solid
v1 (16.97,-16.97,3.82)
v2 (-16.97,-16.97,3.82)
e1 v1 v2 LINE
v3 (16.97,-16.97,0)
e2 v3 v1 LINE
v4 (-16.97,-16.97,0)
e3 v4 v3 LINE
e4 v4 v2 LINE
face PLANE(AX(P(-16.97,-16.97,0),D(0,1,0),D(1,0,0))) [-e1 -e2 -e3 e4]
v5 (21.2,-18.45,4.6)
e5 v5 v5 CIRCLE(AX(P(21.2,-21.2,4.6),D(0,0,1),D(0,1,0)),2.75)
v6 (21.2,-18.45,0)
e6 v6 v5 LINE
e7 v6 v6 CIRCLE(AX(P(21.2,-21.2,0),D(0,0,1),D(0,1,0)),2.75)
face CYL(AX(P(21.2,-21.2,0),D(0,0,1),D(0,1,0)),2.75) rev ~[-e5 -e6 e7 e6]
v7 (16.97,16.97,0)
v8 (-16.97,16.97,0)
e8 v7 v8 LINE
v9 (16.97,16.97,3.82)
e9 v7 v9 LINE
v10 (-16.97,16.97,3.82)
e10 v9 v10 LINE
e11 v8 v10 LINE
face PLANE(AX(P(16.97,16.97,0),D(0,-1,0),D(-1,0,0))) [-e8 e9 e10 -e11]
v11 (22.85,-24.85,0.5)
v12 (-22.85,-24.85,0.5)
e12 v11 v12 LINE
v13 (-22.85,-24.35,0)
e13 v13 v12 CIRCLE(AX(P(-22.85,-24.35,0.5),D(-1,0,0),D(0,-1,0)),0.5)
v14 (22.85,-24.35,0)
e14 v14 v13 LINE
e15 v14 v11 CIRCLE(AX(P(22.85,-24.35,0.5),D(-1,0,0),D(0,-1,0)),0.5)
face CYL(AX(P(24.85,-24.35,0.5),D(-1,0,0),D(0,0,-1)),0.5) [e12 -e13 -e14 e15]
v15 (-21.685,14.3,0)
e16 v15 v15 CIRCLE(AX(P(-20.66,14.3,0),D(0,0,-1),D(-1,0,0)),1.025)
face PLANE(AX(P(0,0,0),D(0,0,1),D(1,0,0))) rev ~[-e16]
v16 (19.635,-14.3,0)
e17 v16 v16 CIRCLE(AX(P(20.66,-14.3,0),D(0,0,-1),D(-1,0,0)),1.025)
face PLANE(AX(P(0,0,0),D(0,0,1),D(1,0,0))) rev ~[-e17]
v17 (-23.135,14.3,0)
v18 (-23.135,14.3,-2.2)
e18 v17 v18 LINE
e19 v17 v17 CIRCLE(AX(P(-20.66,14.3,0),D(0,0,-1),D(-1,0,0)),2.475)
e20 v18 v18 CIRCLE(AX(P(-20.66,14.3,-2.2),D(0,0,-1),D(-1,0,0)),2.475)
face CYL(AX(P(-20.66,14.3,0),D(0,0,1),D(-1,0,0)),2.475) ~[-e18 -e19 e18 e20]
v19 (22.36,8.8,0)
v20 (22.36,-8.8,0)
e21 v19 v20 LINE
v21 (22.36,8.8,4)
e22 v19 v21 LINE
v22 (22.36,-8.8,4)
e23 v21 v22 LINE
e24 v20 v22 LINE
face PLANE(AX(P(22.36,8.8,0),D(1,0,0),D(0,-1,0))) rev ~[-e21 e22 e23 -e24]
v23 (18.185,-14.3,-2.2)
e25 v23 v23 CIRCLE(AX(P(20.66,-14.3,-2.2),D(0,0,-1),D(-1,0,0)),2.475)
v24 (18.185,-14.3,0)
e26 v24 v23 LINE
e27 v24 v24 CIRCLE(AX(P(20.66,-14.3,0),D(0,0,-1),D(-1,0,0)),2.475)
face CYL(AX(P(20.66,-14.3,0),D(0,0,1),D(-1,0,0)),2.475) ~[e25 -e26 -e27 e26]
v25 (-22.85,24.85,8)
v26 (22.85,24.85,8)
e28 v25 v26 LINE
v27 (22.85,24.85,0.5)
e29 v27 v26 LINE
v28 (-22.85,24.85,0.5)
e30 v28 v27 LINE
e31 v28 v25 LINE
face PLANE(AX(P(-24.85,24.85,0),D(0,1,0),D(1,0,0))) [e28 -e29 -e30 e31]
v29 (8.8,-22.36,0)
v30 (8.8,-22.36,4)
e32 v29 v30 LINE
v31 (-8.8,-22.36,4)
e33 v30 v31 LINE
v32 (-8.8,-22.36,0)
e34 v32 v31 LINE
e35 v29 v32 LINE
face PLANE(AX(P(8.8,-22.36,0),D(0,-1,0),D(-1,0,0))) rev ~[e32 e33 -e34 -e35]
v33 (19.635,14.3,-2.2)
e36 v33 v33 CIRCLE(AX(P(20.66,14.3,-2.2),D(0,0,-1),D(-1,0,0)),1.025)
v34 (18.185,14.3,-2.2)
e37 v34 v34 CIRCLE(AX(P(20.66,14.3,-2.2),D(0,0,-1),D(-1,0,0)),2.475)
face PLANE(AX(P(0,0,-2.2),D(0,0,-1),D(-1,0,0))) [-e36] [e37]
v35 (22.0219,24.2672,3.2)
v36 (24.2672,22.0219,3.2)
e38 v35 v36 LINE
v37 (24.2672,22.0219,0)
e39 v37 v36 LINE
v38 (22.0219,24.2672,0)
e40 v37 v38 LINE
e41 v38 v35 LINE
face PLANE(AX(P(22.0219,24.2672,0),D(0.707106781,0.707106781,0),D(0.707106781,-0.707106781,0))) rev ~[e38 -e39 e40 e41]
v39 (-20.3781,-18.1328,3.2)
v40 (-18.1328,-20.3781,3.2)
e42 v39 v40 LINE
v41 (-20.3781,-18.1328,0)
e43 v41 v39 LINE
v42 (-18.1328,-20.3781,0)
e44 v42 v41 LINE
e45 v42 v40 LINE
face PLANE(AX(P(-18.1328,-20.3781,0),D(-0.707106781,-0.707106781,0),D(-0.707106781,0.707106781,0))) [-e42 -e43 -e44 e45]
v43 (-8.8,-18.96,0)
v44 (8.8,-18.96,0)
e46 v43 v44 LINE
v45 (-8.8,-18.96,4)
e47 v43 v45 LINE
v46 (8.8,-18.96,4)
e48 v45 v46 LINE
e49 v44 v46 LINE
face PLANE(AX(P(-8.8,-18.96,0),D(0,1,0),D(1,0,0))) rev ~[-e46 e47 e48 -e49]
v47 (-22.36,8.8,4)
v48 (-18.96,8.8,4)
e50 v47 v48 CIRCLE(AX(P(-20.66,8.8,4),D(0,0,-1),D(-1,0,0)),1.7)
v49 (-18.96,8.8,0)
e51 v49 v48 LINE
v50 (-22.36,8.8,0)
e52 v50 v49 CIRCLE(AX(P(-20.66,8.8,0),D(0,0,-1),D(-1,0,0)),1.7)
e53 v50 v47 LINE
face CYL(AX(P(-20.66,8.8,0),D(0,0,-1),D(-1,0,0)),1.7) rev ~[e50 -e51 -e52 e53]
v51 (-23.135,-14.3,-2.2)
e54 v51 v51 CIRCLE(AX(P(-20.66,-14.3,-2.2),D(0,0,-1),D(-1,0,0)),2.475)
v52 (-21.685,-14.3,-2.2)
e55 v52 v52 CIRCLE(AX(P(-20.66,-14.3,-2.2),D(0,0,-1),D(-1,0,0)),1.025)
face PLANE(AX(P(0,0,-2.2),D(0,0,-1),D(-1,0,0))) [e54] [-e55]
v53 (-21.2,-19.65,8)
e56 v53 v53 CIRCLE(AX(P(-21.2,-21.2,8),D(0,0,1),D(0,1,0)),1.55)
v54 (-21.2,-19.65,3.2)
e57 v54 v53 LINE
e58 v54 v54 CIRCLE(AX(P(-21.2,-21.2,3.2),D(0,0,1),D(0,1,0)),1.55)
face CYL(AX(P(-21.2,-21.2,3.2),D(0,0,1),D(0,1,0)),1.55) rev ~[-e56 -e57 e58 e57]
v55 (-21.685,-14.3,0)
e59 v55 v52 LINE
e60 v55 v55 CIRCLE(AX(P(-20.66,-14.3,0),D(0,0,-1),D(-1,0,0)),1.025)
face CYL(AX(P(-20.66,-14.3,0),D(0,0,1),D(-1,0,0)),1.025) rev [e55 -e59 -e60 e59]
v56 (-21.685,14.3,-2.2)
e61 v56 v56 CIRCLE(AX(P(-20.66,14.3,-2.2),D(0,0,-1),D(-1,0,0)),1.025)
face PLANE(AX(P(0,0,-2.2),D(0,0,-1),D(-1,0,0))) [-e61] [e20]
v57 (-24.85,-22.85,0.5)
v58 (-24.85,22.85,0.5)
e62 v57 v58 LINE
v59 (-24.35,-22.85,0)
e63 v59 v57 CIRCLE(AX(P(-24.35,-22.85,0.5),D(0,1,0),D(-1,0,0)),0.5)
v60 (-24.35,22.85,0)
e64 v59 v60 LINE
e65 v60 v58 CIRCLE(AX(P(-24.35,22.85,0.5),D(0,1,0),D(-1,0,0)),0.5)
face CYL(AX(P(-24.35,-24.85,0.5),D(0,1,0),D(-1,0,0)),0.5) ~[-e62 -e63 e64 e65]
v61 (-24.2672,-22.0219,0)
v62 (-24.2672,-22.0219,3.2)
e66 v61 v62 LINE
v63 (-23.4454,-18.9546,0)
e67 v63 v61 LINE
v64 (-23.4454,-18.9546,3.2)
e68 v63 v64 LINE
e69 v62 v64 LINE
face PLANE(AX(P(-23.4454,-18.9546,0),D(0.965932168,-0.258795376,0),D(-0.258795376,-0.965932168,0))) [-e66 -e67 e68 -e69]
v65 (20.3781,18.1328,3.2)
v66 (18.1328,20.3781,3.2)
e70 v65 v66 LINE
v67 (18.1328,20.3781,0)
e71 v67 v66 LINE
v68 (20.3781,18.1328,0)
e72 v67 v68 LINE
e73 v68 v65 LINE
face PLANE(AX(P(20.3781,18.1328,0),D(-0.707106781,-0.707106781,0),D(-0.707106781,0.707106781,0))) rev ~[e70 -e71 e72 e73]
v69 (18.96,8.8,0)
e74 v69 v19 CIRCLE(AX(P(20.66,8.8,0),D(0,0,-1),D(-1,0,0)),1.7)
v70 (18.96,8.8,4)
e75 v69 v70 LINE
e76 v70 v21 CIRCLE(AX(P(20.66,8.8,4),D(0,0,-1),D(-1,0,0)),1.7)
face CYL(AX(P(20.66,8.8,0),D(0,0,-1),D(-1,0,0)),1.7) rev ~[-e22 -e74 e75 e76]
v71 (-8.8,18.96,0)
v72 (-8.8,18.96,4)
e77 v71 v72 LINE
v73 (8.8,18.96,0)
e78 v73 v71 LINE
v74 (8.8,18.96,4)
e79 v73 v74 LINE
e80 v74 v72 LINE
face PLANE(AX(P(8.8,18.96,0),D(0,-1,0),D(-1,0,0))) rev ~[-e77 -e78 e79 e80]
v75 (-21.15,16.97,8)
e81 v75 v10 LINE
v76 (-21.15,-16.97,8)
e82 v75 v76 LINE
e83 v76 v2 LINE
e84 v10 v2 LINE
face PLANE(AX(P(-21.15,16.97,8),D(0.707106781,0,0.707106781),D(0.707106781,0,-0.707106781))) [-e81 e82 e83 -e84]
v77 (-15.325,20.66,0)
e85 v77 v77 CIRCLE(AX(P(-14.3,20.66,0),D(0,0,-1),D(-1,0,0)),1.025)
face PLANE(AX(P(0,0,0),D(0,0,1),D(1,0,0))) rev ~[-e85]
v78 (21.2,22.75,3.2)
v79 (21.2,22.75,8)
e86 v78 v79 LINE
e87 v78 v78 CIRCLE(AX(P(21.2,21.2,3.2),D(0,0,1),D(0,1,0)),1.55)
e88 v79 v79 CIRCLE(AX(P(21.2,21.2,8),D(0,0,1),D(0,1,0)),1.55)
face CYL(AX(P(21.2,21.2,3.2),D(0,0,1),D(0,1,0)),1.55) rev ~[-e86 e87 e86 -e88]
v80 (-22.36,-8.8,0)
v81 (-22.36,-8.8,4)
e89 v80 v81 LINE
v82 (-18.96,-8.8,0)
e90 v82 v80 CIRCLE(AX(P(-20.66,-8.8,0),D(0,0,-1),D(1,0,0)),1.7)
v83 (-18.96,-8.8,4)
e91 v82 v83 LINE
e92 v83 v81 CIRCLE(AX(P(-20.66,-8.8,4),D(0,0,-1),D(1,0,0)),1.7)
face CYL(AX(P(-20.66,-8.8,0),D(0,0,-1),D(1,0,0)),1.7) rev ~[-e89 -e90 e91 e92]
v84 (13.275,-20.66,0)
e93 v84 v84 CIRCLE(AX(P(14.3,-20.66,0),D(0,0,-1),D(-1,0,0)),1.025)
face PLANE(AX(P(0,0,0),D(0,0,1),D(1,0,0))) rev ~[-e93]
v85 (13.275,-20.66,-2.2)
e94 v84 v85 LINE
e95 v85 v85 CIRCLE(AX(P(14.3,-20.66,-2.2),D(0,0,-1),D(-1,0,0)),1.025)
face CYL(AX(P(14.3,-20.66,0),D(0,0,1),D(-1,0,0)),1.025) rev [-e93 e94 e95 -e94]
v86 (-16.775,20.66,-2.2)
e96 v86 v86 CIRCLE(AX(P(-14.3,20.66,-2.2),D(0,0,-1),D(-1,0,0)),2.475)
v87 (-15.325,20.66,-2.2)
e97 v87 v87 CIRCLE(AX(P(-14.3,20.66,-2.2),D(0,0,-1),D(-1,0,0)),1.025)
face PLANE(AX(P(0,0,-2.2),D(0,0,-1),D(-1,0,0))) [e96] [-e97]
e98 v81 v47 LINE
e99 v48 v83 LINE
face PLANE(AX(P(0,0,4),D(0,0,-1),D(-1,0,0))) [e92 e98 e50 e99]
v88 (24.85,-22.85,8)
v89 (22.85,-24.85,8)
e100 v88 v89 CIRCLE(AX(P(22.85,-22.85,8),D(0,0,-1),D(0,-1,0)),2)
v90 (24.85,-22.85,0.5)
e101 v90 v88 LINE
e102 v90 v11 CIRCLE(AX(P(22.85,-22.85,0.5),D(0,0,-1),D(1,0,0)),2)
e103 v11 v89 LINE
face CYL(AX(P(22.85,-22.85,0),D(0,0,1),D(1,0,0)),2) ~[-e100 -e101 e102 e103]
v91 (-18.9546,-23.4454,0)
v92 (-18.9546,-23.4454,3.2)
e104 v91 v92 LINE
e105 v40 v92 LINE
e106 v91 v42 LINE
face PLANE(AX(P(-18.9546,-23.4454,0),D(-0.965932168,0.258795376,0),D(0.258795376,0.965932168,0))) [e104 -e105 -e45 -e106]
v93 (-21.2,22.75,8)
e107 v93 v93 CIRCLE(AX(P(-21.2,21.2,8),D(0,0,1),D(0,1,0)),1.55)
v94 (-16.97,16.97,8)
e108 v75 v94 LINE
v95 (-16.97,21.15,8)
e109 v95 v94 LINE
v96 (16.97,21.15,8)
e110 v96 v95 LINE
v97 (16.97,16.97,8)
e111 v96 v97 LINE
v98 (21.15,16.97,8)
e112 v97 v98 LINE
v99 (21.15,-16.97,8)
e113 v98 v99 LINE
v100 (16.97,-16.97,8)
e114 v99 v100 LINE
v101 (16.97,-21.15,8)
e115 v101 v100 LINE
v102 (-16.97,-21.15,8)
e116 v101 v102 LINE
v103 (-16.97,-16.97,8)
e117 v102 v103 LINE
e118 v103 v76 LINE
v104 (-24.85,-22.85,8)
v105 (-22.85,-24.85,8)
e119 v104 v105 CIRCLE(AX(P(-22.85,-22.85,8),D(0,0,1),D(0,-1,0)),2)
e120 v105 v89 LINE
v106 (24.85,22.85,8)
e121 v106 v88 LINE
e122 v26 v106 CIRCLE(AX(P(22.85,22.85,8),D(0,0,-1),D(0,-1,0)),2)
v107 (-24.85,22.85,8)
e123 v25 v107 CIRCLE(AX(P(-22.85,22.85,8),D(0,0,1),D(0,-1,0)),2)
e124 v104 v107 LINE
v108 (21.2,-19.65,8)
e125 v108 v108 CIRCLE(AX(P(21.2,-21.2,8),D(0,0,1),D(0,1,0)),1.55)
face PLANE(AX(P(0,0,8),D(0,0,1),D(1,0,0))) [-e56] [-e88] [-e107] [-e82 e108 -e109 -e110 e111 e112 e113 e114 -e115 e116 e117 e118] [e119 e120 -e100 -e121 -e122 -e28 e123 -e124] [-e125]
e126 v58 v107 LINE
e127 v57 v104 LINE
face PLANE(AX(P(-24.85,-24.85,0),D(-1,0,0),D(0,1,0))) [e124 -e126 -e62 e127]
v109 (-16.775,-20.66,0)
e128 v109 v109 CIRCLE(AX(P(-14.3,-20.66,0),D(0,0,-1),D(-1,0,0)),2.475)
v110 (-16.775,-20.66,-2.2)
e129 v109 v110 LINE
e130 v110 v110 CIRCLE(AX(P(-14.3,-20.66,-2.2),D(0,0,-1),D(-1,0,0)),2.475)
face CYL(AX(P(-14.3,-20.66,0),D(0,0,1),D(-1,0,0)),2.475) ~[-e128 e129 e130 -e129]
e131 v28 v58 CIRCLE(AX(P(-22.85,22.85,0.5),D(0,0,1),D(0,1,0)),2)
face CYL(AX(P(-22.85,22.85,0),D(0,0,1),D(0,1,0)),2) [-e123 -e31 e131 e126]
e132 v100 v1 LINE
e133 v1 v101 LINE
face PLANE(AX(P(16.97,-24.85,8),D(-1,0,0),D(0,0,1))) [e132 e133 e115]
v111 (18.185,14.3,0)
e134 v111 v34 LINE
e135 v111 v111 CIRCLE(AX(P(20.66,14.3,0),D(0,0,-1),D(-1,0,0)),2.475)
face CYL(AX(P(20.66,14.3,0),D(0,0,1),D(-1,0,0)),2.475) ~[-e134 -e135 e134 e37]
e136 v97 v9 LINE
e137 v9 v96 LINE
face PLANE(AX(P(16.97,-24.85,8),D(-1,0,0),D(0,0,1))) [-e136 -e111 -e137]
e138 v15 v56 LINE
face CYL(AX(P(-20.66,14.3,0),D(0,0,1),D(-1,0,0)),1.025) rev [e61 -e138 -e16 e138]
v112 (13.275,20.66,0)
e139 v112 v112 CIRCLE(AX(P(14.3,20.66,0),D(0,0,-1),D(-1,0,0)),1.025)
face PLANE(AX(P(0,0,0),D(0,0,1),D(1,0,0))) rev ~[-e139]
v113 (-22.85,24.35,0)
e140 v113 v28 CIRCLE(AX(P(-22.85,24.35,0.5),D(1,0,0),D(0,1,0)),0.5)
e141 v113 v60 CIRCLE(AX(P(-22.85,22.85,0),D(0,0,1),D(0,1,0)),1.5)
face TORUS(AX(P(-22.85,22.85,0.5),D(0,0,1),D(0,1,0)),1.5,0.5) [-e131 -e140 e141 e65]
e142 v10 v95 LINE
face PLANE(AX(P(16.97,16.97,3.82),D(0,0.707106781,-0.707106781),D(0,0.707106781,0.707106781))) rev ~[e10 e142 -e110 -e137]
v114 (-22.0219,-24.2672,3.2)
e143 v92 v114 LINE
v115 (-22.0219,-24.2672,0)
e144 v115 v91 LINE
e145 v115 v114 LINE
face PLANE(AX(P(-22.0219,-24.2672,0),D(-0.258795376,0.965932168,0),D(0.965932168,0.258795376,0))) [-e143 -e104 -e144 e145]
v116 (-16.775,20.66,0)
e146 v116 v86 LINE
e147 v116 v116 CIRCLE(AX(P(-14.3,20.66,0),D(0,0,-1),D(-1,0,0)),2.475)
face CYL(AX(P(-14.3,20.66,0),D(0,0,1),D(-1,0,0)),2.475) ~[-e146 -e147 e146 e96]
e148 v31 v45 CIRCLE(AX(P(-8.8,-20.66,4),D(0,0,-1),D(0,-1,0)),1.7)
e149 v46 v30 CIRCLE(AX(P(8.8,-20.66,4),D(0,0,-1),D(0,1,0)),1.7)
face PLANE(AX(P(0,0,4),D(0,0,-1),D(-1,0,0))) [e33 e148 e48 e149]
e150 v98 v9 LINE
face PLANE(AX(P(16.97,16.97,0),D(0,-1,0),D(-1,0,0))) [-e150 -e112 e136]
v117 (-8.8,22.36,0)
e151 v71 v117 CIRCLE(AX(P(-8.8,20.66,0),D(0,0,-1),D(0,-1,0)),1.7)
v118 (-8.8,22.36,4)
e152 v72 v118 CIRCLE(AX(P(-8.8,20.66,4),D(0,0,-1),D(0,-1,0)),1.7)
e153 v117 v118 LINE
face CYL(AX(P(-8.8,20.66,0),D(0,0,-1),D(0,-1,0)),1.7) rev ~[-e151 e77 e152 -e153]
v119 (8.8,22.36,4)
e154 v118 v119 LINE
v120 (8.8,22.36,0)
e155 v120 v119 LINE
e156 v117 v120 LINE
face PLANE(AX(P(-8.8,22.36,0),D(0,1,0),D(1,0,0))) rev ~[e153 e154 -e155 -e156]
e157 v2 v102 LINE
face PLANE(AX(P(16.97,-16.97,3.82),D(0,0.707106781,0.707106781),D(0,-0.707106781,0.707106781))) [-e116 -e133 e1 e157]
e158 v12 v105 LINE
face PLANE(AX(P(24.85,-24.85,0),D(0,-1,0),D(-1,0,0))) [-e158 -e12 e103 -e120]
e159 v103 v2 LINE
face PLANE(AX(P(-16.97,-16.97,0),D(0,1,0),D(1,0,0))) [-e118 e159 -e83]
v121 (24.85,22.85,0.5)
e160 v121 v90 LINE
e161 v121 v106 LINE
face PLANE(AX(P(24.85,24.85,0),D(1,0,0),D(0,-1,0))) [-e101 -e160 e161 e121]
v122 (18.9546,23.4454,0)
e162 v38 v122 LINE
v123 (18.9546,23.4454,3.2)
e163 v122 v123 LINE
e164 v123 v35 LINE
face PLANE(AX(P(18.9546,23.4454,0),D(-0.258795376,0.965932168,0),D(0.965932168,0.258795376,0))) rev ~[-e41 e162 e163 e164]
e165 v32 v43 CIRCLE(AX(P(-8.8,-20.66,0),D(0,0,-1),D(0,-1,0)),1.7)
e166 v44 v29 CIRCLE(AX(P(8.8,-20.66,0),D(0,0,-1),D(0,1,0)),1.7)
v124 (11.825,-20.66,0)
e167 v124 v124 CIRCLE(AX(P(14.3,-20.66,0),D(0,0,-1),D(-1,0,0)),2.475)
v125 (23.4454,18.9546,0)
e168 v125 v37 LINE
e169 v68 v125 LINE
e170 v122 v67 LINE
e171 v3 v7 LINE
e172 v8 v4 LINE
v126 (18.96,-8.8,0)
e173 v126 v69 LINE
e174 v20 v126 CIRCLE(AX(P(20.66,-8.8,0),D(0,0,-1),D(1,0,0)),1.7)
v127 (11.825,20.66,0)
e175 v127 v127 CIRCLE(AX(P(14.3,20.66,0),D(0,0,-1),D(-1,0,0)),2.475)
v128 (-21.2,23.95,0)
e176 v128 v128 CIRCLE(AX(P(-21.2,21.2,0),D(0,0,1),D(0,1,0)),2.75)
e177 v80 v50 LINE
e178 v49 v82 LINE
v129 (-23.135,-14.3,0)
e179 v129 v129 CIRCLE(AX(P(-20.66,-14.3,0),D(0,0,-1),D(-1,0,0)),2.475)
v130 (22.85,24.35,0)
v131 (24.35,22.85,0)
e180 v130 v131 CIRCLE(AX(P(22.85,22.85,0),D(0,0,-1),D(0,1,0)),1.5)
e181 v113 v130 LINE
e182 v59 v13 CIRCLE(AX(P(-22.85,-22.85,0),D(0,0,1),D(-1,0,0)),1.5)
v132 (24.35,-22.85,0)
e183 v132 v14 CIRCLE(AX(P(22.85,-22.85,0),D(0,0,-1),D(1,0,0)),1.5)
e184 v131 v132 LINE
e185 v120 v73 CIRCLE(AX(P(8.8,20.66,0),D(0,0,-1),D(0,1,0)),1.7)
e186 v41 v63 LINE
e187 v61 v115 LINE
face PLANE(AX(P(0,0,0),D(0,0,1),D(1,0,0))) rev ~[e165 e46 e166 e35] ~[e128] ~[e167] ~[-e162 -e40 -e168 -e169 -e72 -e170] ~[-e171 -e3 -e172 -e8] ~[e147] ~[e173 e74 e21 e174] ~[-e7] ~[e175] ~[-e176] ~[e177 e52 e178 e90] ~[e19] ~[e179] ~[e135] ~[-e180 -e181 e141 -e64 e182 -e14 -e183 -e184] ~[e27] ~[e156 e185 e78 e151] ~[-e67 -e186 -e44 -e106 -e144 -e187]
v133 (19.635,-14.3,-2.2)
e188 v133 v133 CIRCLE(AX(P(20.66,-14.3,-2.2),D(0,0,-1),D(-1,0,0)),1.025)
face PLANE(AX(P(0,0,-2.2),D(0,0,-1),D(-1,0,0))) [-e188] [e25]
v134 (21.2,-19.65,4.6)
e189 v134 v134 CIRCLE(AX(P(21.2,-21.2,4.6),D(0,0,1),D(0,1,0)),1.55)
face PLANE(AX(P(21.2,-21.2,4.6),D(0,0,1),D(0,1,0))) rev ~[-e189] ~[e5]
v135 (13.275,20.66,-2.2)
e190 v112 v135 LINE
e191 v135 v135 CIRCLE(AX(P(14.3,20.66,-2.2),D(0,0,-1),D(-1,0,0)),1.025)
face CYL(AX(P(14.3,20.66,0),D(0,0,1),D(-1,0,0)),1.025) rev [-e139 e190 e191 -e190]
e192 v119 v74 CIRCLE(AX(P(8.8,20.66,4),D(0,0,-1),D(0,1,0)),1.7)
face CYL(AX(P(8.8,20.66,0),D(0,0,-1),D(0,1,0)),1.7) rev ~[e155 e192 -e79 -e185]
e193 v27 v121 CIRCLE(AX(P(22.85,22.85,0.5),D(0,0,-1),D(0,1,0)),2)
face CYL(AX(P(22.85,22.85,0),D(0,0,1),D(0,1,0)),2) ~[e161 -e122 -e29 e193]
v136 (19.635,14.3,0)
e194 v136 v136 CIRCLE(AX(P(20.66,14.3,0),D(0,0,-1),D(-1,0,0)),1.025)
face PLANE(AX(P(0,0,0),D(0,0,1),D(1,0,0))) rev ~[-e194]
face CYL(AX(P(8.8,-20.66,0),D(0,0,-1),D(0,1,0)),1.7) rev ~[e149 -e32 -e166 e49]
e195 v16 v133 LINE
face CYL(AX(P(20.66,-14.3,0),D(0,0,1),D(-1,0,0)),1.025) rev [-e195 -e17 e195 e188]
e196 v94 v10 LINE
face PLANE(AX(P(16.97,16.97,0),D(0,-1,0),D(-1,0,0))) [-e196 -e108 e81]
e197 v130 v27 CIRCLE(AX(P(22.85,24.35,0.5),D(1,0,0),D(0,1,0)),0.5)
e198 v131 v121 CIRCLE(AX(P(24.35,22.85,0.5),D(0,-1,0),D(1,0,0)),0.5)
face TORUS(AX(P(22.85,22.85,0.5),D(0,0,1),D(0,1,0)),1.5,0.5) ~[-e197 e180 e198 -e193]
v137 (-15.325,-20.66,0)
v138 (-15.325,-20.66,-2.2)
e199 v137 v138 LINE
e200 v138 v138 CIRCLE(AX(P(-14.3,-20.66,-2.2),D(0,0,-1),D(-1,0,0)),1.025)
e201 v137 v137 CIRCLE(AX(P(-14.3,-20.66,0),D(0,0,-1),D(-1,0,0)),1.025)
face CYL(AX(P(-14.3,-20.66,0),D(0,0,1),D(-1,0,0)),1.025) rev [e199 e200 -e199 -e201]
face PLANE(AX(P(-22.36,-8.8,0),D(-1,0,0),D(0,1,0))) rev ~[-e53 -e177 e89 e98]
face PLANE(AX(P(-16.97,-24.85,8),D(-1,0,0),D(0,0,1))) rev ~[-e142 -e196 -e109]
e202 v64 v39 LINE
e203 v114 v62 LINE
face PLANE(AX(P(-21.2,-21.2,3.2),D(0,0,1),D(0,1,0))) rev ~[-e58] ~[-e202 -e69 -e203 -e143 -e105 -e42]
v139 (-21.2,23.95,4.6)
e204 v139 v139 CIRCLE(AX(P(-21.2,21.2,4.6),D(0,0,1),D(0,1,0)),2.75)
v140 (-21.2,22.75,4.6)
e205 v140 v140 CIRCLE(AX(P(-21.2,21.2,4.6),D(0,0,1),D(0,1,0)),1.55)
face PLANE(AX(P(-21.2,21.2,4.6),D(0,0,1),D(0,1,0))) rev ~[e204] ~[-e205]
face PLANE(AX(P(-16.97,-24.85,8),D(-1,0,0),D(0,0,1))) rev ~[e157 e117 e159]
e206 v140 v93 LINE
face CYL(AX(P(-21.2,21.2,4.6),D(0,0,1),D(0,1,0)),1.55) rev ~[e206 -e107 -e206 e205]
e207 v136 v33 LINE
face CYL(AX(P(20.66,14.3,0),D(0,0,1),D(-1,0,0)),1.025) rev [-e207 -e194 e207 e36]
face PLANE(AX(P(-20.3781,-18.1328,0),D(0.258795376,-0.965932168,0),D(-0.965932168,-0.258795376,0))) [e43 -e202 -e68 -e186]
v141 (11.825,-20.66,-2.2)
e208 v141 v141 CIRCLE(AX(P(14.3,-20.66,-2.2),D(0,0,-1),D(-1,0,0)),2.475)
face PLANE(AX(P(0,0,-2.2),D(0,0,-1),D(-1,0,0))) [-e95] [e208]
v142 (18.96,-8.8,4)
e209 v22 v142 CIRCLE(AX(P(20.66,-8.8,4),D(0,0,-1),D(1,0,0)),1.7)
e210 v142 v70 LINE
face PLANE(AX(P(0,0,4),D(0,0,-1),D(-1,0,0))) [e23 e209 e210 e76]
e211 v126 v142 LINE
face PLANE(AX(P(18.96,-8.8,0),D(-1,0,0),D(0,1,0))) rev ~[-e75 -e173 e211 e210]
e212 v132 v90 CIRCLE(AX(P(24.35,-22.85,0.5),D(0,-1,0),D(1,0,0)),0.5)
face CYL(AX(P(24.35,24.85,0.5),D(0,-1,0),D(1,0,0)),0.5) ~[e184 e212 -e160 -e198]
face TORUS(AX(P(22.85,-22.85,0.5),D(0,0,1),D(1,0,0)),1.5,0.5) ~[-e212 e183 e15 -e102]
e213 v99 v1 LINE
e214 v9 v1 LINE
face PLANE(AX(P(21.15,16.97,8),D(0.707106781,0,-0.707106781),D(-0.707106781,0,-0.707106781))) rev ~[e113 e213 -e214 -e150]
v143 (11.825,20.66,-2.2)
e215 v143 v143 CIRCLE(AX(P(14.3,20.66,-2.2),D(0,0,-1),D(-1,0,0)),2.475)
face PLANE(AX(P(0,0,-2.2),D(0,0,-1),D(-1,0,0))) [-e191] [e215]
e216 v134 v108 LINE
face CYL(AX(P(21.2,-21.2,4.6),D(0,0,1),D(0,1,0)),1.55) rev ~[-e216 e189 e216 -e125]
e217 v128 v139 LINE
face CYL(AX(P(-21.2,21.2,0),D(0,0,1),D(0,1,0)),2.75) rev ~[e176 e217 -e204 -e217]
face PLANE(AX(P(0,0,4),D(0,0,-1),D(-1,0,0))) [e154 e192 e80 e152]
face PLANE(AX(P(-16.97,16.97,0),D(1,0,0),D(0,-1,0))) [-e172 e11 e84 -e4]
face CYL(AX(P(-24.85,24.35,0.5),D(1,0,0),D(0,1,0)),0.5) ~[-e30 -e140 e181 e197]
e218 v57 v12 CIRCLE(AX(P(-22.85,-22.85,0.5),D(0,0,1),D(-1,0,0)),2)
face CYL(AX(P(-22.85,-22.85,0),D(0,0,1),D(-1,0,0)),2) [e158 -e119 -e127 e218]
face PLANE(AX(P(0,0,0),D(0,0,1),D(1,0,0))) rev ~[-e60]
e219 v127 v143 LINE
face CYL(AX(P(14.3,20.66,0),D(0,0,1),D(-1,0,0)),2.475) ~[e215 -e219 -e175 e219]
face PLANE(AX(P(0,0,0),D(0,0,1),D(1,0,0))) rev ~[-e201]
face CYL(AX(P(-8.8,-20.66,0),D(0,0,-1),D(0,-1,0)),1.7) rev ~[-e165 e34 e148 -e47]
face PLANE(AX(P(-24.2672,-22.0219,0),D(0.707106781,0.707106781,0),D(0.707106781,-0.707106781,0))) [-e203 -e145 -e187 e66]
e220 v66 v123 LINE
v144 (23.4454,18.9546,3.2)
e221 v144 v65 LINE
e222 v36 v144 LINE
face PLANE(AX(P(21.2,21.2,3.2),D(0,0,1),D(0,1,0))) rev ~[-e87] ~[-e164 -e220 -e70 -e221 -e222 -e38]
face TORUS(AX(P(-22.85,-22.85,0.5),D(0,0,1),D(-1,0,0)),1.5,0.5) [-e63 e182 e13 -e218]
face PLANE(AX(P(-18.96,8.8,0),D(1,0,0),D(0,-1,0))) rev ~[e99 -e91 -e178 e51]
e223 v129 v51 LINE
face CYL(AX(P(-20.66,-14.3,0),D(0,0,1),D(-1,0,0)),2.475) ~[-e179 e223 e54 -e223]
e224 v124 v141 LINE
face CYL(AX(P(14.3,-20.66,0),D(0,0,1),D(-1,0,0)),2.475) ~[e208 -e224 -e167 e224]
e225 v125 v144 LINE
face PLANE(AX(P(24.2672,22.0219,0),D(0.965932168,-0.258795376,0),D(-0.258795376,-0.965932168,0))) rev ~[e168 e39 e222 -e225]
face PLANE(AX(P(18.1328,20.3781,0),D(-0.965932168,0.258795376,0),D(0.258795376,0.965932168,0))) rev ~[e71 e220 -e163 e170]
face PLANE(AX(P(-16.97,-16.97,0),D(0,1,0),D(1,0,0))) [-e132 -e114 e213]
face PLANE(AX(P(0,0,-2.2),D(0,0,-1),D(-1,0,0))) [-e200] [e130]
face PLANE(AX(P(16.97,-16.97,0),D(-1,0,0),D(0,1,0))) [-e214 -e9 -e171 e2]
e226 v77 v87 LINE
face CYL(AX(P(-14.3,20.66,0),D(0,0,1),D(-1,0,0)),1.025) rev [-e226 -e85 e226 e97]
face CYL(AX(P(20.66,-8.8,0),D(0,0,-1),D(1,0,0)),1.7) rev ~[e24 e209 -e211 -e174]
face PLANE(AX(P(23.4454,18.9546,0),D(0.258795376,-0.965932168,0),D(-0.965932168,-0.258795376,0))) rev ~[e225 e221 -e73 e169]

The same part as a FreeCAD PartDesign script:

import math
import FreeCAD as App
import Part
import Sketcher
Q = App.Units.Quantity


def edges_at(feature, points):
    """Names of the edges that pass closest to the given points."""
    edges = feature.Shape.Edges
    near = lambda p: min(range(len(edges)), key=lambda i: edges[i].distToShape(Part.Vertex(*p))[0])
    return sorted({f"Edge{near(p) + 1}" for p in points})


def add_polygon(sketch, points):
    """Adds a closed chain of lines whose ends are joined by coincident constraints."""
    first, n = sketch.GeometryCount, len(points)
    for a, b in zip(points, points[1:] + points[:1]):
        sketch.addGeometry(Part.LineSegment(App.Vector(*a, 0), App.Vector(*b, 0)), False)
    for i in range(n):
        sketch.addConstraint(Sketcher.Constraint("Coincident", first + i, 2, first + (i + 1) % n, 1))

doc = App.newDocument("Part")
body = doc.addObject("PartDesign::Body", "Body")

# Sketch on XY plane
sketch1 = body.newObject("Sketcher::SketchObject", "Sketch")
sketch1.AttachmentSupport = (doc.getObject("XY_Plane"), [""])
sketch1.MapMode = "FlatFace"
add_polygon(sketch1, [(25, 25), (-25, 25), (-25, -25), (25, -25)])  # lines 0-3
add_polygon(sketch1, [(-17, 17), (17, 17), (17, -17), (-17, -17)])  # lines 4-7
sketch1.addConstraint([
    Sketcher.Constraint("Horizontal", 0),
    Sketcher.Constraint("Vertical", 1),
    Sketcher.Constraint("Horizontal", 2),
    Sketcher.Constraint("Vertical", 3),
    Sketcher.Constraint("Horizontal", 4),
    Sketcher.Constraint("Vertical", 5),
    Sketcher.Constraint("Horizontal", 6),
    Sketcher.Constraint("Vertical", 7),
    Sketcher.Constraint("Symmetric", 0, 2, 2, 2, -1, 1),
    Sketcher.Constraint("Symmetric", 4, 2, 6, 2, -1, 1),
    Sketcher.Constraint("Equal", 2, 1),
    Sketcher.Constraint("Equal", 6, 5),
    Sketcher.Constraint("DistanceX", 0, 2, 0, 1, 49.7),
    Sketcher.Constraint("DistanceX", 4, 2, 3, 2, 7.88),
])
pad1 = body.newObject("PartDesign::Pad", "Pad")
pad1.Profile = sketch1
pad1.Length = 8

# Sketch on XY plane
sketch2 = body.newObject("Sketcher::SketchObject", "Sketch001")
sketch2.AttachmentSupport = (doc.getObject("XY_Plane"), [""])
sketch2.MapMode = "FlatFace"
sketch2.addGeometry([
    Part.Circle(App.Vector(-21.2, 21.2, 0), App.Vector(0, 0, 1), 1.6),
    Part.Circle(App.Vector(21.2, -21.2, 0), App.Vector(0, 0, 1), 1.6),
], False)
sketch2.addConstraint([
    Sketcher.Constraint("Equal", 0, 1),
    Sketcher.Constraint("Symmetric", 0, 3, 1, 3, -1, 1),
    Sketcher.Constraint("Diameter", 0, 3.1),
    Sketcher.Constraint("DistanceX", 0, 3, -1, 1, 21.2),
    Sketcher.Constraint("DistanceY", -1, 1, 0, 3, 21.2),
])
doc.recompute()
hole = body.newObject("PartDesign::Hole", "Hole")
hole.Profile = sketch2
hole.ThreadType = "None"
hole.Diameter = 3.1
hole.DepthType = "Dimension"
hole.Depth = 16
hole.DrillPoint = "Angled"
hole.DrillPointAngle = 118
hole.HoleCutType = "Counterbore"
hole.HoleCutDiameter = 5.5
hole.HoleCutDepth = 4.6
hole.Reversed = True

# Sketch on XY plane
sketch3 = body.newObject("Sketcher::SketchObject", "Sketch002")
sketch3.AttachmentSupport = (doc.getObject("XY_Plane"), [""])
sketch3.MapMode = "FlatFace"
sketch3.AttachmentOffset = App.Placement(App.Vector(0, 0, 42.1), App.Rotation())
add_polygon(sketch3, [(-17, -20.8), (-17, -17), (-20.8, -17)])  # lines 0-2
add_polygon(sketch3, [(-17, 20.8), (-20.8, 17), (-17, 17)])  # lines 3-5
add_polygon(sketch3, [(20.8, 17), (17, 20.8), (17, 17)])  # lines 6-8
add_polygon(sketch3, [(17, -20.8), (20.8, -17), (17, -17)])  # lines 9-11
sketch3.addConstraint([
    Sketcher.Constraint("Vertical", 0),
    Sketcher.Constraint("Horizontal", 1),
    Sketcher.Constraint("Horizontal", 4),
    Sketcher.Constraint("Vertical", 5),
    Sketcher.Constraint("Vertical", 7),
    Sketcher.Constraint("Horizontal", 8),
    Sketcher.Constraint("Horizontal", 10),
    Sketcher.Constraint("Vertical", 11),
    Sketcher.Constraint("Symmetric", 2, 2, 6, 2, -1, 1),
    Sketcher.Constraint("Symmetric", 1, 2, 8, 2, -1, 1),
    Sketcher.Constraint("Symmetric", 3, 2, 9, 2, -1, 1),
    Sketcher.Constraint("Symmetric", 5, 2, 11, 2, -1, 1),
    Sketcher.Constraint("Symmetric", 5, 2, 6, 2, -2),
    Sketcher.Constraint("Symmetric", 3, 2, 8, 2, -2),
    Sketcher.Constraint("Perpendicular", 2, 3),
    Sketcher.Constraint("DistanceX", 1, 2, 1, 1, 3.78),
    Sketcher.Constraint("DistanceY", 2, 2, 5, 2, 41.5),
    Sketcher.Constraint("DistanceX", 3, 2, 8, 2, 41.5),
])
pocket1 = body.newObject("PartDesign::Pocket", "Pocket")
pocket1.Profile = sketch3
pocket1.Length = 34.1

# Sketch on XZ plane
sketch4 = body.newObject("Sketcher::SketchObject", "Sketch003")
sketch4.AttachmentSupport = (doc.getObject("XZ_Plane"), [""])
sketch4.MapMode = "FlatFace"
sketch4.AttachmentOffset = App.Placement(App.Vector(0, 0, -16.97), App.Rotation())
add_polygon(sketch4, [(17, 3.8), (21.1, 8), (17, 8)])  # lines 0-2
add_polygon(sketch4, [(-17, 3.8), (-17, 8), (-21.1, 8)])  # lines 3-5
sketch4.addConstraint([
    Sketcher.Constraint("Horizontal", 1),
    Sketcher.Constraint("Vertical", 2),
    Sketcher.Constraint("Vertical", 3),
    Sketcher.Constraint("Horizontal", 4),
    Sketcher.Constraint("Symmetric", 1, 2, 3, 2, -2),
    Sketcher.Constraint("Perpendicular", 0, 5),
    Sketcher.Constraint("Horizontal", 2, 2, 5, 2),
    Sketcher.Constraint("Equal", 1, 4),
    Sketcher.Constraint("DistanceX", 1, 2, 1, 1, 4.18),
    Sketcher.Constraint("DistanceY", -1, 1, 0, 2, 8.0),
    Sketcher.Constraint("DistanceX", 4, 2, 0, 2, 42.3),
])
pocket2 = body.newObject("PartDesign::Pocket", "Pocket001")
pocket2.Profile = sketch4
pocket2.Length = 33.94
pocket2.Reversed = True

# Sketch on YZ plane
sketch5 = body.newObject("Sketcher::SketchObject", "Sketch004")
sketch5.AttachmentSupport = (doc.getObject("YZ_Plane"), [""])
sketch5.MapMode = "FlatFace"
sketch5.AttachmentOffset = App.Placement(App.Vector(0, 0, 16.97), App.Rotation())
add_polygon(sketch5, [(-17, 8), (-17, 3.8), (-21.1, 8)])  # lines 0-2
add_polygon(sketch5, [(17, 3.8), (17, 8), (21.1, 8)])  # lines 3-5
sketch5.addConstraint([
    Sketcher.Constraint("Vertical", 0),
    Sketcher.Constraint("Horizontal", 2),
    Sketcher.Constraint("Vertical", 3),
    Sketcher.Constraint("Horizontal", 4),
    Sketcher.Constraint("Symmetric", 2, 2, 3, 2, -2),
    Sketcher.Constraint("Perpendicular", 1, 5),
    Sketcher.Constraint("Horizontal", 0, 2, 5, 2),
    Sketcher.Constraint("Equal", 2, 4),
    Sketcher.Constraint("DistanceX", 2, 1, 2, 2, 4.18),
    Sketcher.Constraint("DistanceY", -1, 1, 1, 2, 8.0),
    Sketcher.Constraint("DistanceX", 1, 2, 4, 2, 42.3),
])
pocket3 = body.newObject("PartDesign::Pocket", "Pocket002")
pocket3.Profile = sketch5
pocket3.Length = 33.94

# Sketch on XY plane
sketch6 = body.newObject("Sketcher::SketchObject", "Sketch005")
sketch6.AttachmentSupport = (doc.getObject("XY_Plane"), [""])
sketch6.MapMode = "FlatFace"
sketch6.AttachmentOffset = App.Placement(App.Vector(0, 0, 42.1), App.Rotation())
sketch6.addGeometry([
    Part.Circle(App.Vector(20.9, 20.9, 0), App.Vector(0, 0, 1), 1.4),
    Part.Circle(App.Vector(-21.2, 21.2, 0), App.Vector(0, 0, 1), 1.4),
    Part.Circle(App.Vector(21.2, -21.2, 0), App.Vector(0, 0, 1), 1.4),
    Part.Circle(App.Vector(-20.9, -20.9, 0), App.Vector(0, 0, 1), 1.4),
], False)
sketch6.addConstraint([
    Sketcher.Constraint("Equal", 0, 1),
    Sketcher.Constraint("Equal", 1, 2),
    Sketcher.Constraint("Equal", 2, 3),
    Sketcher.Constraint("Symmetric", 1, 3, 2, 3, -1, 1),
    Sketcher.Constraint("Symmetric", 0, 3, 3, 3, -1, 1),
    Sketcher.Constraint("Diameter", 0, 2.8),
    Sketcher.Constraint("DistanceX", 1, 3, -1, 1, 21.2),
    Sketcher.Constraint("DistanceY", -1, 1, 1, 3, 21.2),
    Sketcher.Constraint("DistanceX", 3, 3, 0, 3, 41.9),
    Sketcher.Constraint("DistanceY", 3, 3, 0, 3, 41.9),
])
doc.recompute()
hole2 = body.newObject("PartDesign::Hole", "Hole001")
hole2.Profile = sketch6
hole2.ThreadType = "None"
hole2.Diameter = 2.8
hole2.DepthType = "Dimension"
hole2.Depth = 12
hole2.DrillPoint = "Angled"
hole2.DrillPointAngle = 118

# Sketch on XY plane
sketch7 = body.newObject("Sketcher::SketchObject", "Sketch006")
sketch7.AttachmentSupport = (doc.getObject("XY_Plane"), [""])
sketch7.MapMode = "FlatFace"
sketch7.AttachmentOffset = App.Placement(App.Vector(0, 0, 42.1), App.Rotation())
add_polygon(sketch7, [(-17, -24.9), (-17, -20.8), (-20.8, -17), (-24.9, -17), (-24.9, -24.9)])  # lines 0-4
add_polygon(sketch7, [(17, 24.9), (17, 20.8), (20.8, 17), (24.9, 17), (24.9, 24.9)])  # lines 5-9
sketch7.addConstraint([
    Sketcher.Constraint("Vertical", 0),
    Sketcher.Constraint("Horizontal", 2),
    Sketcher.Constraint("Vertical", 3),
    Sketcher.Constraint("Horizontal", 4),
    Sketcher.Constraint("Vertical", 5),
    Sketcher.Constraint("Horizontal", 7),
    Sketcher.Constraint("Vertical", 8),
    Sketcher.Constraint("Horizontal", 9),
    Sketcher.Constraint("Symmetric", 0, 2, 5, 2, -1, 1),
    Sketcher.Constraint("Symmetric", 1, 2, 6, 2, -1, 1),
    Sketcher.Constraint("Symmetric", 3, 2, 8, 2, -1, 1),
    Sketcher.Constraint("Equal", 7, 0),
    Sketcher.Constraint("Equal", 9, 3),
    Sketcher.Constraint("DistanceX", 2, 2, 2, 1, 4.1),
    Sketcher.Constraint("DistanceX", 4, 1, 4, 2, 7.88),
    Sketcher.Constraint("DistanceY", 0, 2, 5, 2, 41.5),
    Sketcher.Constraint("DistanceX", 1, 2, 6, 2, 41.5),
])
pocket4 = body.newObject("PartDesign::Pocket", "Pocket003")
pocket4.Profile = sketch7
pocket4.Length = 34.1
doc.recompute()

fillet = body.newObject("PartDesign::Fillet", "Fillet")
fillet.Base = (pocket4, edges_at(pocket4, [
    (24.85, -24.85, 4),
    (24.85, 24.85, 4),
    (-24.85, 24.85, 4),
    (-24.85, -24.85, 4),
]))
fillet.Radius = 2
doc.recompute()

fillet2 = body.newObject("PartDesign::Fillet", "Fillet001")
fillet2.Base = (fillet, edges_at(fillet, [
    (0, 24.85, 0),
    (24.85, 0, 0),
    (-24.85, 0, 0),
    (0, -24.85, 0),
]))
fillet2.Radius = 0.5

# Sketch on XY plane
sketch8 = body.newObject("Sketcher::SketchObject", "Sketch007")
sketch8.AttachmentSupport = (doc.getObject("XY_Plane"), [""])
sketch8.MapMode = "FlatFace"
sketch8.addGeometry([
    Part.ArcOfCircle(Part.Circle(App.Vector(-8.8, 20.7, 0), App.Vector(0, 0, 1), 1.7), math.radians(90), math.radians(270)),  # 0
    Part.LineSegment(App.Vector(-8.8, 22.4, 0), App.Vector(8.8, 22.4, 0)),  # 1
    Part.ArcOfCircle(Part.Circle(App.Vector(8.8, 20.7, 0), App.Vector(0, 0, 1), 1.7), math.radians(-90), math.radians(90)),  # 2
    Part.LineSegment(App.Vector(8.8, 19, 0), App.Vector(-8.8, 19, 0)),  # 3
    Part.ArcOfCircle(Part.Circle(App.Vector(20.7, -8.8, 0), App.Vector(0, 0, 1), 1.7), math.radians(180), math.radians(360)),  # 4
    Part.LineSegment(App.Vector(19, -8.8, 0), App.Vector(19, 8.8, 0)),  # 5
    Part.ArcOfCircle(Part.Circle(App.Vector(20.7, 8.8, 0), App.Vector(0, 0, 1), 1.7), math.radians(0), math.radians(180)),  # 6
    Part.LineSegment(App.Vector(22.4, 8.8, 0), App.Vector(22.4, -8.8, 0)),  # 7
    Part.ArcOfCircle(Part.Circle(App.Vector(-8.8, -20.7, 0), App.Vector(0, 0, 1), 1.7), math.radians(90), math.radians(270)),  # 8
    Part.LineSegment(App.Vector(-8.8, -19, 0), App.Vector(8.8, -19, 0)),  # 9
    Part.ArcOfCircle(Part.Circle(App.Vector(8.8, -20.7, 0), App.Vector(0, 0, 1), 1.7), math.radians(-90), math.radians(90)),  # 10
    Part.LineSegment(App.Vector(8.8, -22.4, 0), App.Vector(-8.8, -22.4, 0)),  # 11
    Part.ArcOfCircle(Part.Circle(App.Vector(-20.7, 8.8, 0), App.Vector(0, 0, 1), 1.7), math.radians(0), math.radians(180)),  # 12
    Part.LineSegment(App.Vector(-19, 8.8, 0), App.Vector(-19, -8.8, 0)),  # 13
    Part.ArcOfCircle(Part.Circle(App.Vector(-20.7, -8.8, 0), App.Vector(0, 0, 1), 1.7), math.radians(180), math.radians(360)),  # 14
    Part.LineSegment(App.Vector(-22.4, -8.8, 0), App.Vector(-22.4, 8.8, 0)),  # 15
], False)
sketch8.addConstraint([
    Sketcher.Constraint("Tangent", 0, 1, 1, 1),
    Sketcher.Constraint("Tangent", 1, 2, 2, 2),
    Sketcher.Constraint("Tangent", 2, 1, 3, 1),
    Sketcher.Constraint("Tangent", 3, 2, 0, 2),
    Sketcher.Constraint("Tangent", 4, 1, 5, 1),
    Sketcher.Constraint("Tangent", 5, 2, 6, 2),
    Sketcher.Constraint("Tangent", 6, 1, 7, 1),
    Sketcher.Constraint("Tangent", 7, 2, 4, 2),
    Sketcher.Constraint("Tangent", 8, 1, 9, 1),
    Sketcher.Constraint("Tangent", 9, 2, 10, 2),
    Sketcher.Constraint("Tangent", 10, 1, 11, 1),
    Sketcher.Constraint("Tangent", 11, 2, 8, 2),
    Sketcher.Constraint("Tangent", 12, 1, 13, 1),
    Sketcher.Constraint("Tangent", 13, 2, 14, 2),
    Sketcher.Constraint("Tangent", 14, 1, 15, 1),
    Sketcher.Constraint("Tangent", 15, 2, 12, 2),
    Sketcher.Constraint("Horizontal", 1),
    Sketcher.Constraint("Horizontal", 3),
    Sketcher.Constraint("Vertical", 5),
    Sketcher.Constraint("Vertical", 7),
    Sketcher.Constraint("Horizontal", 9),
    Sketcher.Constraint("Horizontal", 11),
    Sketcher.Constraint("Vertical", 13),
    Sketcher.Constraint("Vertical", 15),
    Sketcher.Constraint("Equal", 2, 4),
    Sketcher.Constraint("Equal", 6, 8),
    Sketcher.Constraint("Equal", 10, 12),
    Sketcher.Constraint("Symmetric", 2, 3, 8, 3, -1, 1),
    Sketcher.Constraint("Symmetric", 4, 3, 12, 3, -1, 1),
    Sketcher.Constraint("Horizontal", 6, 3, 12, 3),
    Sketcher.Constraint("Horizontal", 4, 3, 14, 3),
    Sketcher.Constraint("Vertical", 0, 3, 8, 3),
    Sketcher.Constraint("Vertical", 2, 3, 10, 3),
    Sketcher.Constraint("Equal", 11, 5),
    Sketcher.Constraint("Radius", 0, 1.7),
    Sketcher.Constraint("DistanceX", 1, 1, 1, 2, 17.6),
    Sketcher.Constraint("DistanceY", -1, 1, 0, 3, 20.66),
    Sketcher.Constraint("DistanceX", -1, 1, 4, 3, 20.66),
])
pocket5 = body.newObject("PartDesign::Pocket", "Pocket004")
pocket5.Profile = sketch8
pocket5.Length = 4
pocket5.Reversed = True

# Sketch on XY plane
sketch9 = body.newObject("Sketcher::SketchObject", "Sketch008")
sketch9.AttachmentSupport = (doc.getObject("XY_Plane"), [""])
sketch9.MapMode = "FlatFace"
sketch9.addGeometry([
    Part.Circle(App.Vector(14.3, 20.7, 0), App.Vector(0, 0, 1), 2.5),  # 0
    Part.Circle(App.Vector(14.3, 20.7, 0), App.Vector(0, 0, 1), 1),  # 1
    Part.Circle(App.Vector(-14.3, 20.7, 0), App.Vector(0, 0, 1), 2.5),  # 2
    Part.Circle(App.Vector(-14.3, 20.7, 0), App.Vector(0, 0, 1), 1),  # 3
    Part.Circle(App.Vector(20.7, -14.3, 0), App.Vector(0, 0, 1), 2.5),  # 4
    Part.Circle(App.Vector(20.7, -14.3, 0), App.Vector(0, 0, 1), 1),  # 5
    Part.Circle(App.Vector(20.7, 14.3, 0), App.Vector(0, 0, 1), 2.5),  # 6
    Part.Circle(App.Vector(20.7, 14.3, 0), App.Vector(0, 0, 1), 1),  # 7
    Part.Circle(App.Vector(-14.3, -20.7, 0), App.Vector(0, 0, 1), 2.5),  # 8
    Part.Circle(App.Vector(-14.3, -20.7, 0), App.Vector(0, 0, 1), 1),  # 9
    Part.Circle(App.Vector(14.3, -20.7, 0), App.Vector(0, 0, 1), 2.5),  # 10
    Part.Circle(App.Vector(14.3, -20.7, 0), App.Vector(0, 0, 1), 1),  # 11
    Part.Circle(App.Vector(-20.7, 14.3, 0), App.Vector(0, 0, 1), 2.5),  # 12
    Part.Circle(App.Vector(-20.7, 14.3, 0), App.Vector(0, 0, 1), 1),  # 13
    Part.Circle(App.Vector(-20.7, -14.3, 0), App.Vector(0, 0, 1), 2.5),  # 14
    Part.Circle(App.Vector(-20.7, -14.3, 0), App.Vector(0, 0, 1), 1),  # 15
], False)
sketch9.addConstraint([
    Sketcher.Constraint("Coincident", 1, 3, 0, 3),
    Sketcher.Constraint("Coincident", 3, 3, 2, 3),
    Sketcher.Constraint("Coincident", 5, 3, 4, 3),
    Sketcher.Constraint("Coincident", 7, 3, 6, 3),
    Sketcher.Constraint("Coincident", 9, 3, 8, 3),
    Sketcher.Constraint("Coincident", 11, 3, 10, 3),
    Sketcher.Constraint("Coincident", 13, 3, 12, 3),
    Sketcher.Constraint("Coincident", 15, 3, 14, 3),
    Sketcher.Constraint("Equal", 0, 2),
    Sketcher.Constraint("Equal", 1, 3),
    Sketcher.Constraint("Equal", 2, 4),
    Sketcher.Constraint("Equal", 3, 5),
    Sketcher.Constraint("Equal", 4, 6),
    Sketcher.Constraint("Equal", 5, 7),
    Sketcher.Constraint("Equal", 6, 8),
    Sketcher.Constraint("Equal", 7, 9),
    Sketcher.Constraint("Equal", 8, 10),
    Sketcher.Constraint("Equal", 9, 11),
    Sketcher.Constraint("Equal", 10, 12),
    Sketcher.Constraint("Equal", 11, 13),
    Sketcher.Constraint("Equal", 12, 14),
    Sketcher.Constraint("Equal", 13, 15),
    Sketcher.Constraint("Symmetric", 0, 3, 8, 3, -1, 1),
    Sketcher.Constraint("Symmetric", 2, 3, 10, 3, -1, 1),
    Sketcher.Constraint("Symmetric", 4, 3, 12, 3, -1, 1),
    Sketcher.Constraint("Symmetric", 6, 3, 14, 3, -1, 1),
    Sketcher.Constraint("Symmetric", 0, 3, 2, 3, -2),
    Sketcher.Constraint("Symmetric", 6, 3, 12, 3, -2),
    Sketcher.Constraint("Diameter", 0, 4.95),
    Sketcher.Constraint("Diameter", 1, 2.05),
    Sketcher.Constraint("DistanceX", -1, 1, 0, 3, 14.3),
    Sketcher.Constraint("DistanceY", 4, 3, -1, 1, 14.3),
    Sketcher.Constraint("DistanceY", -1, 1, 0, 3, 20.66),
    Sketcher.Constraint("DistanceX", -1, 1, 4, 3, 20.66),
])
pad2 = body.newObject("PartDesign::Pad", "Pad001")
pad2.Profile = sketch9
pad2.Length = 2.2
pad2.Reversed = True

# Sketch on XY plane
sketch10 = body.newObject("Sketcher::SketchObject", "Sketch009")
sketch10.AttachmentSupport = (doc.getObject("XY_Plane"), [""])
sketch10.MapMode = "FlatFace"
sketch10.addGeometry([
    Part.Circle(App.Vector(-21.2, -21.2, 0), App.Vector(0, 0, 1), 1.6),
    Part.Circle(App.Vector(21.2, 21.2, 0), App.Vector(0, 0, 1), 1.6),
], False)
sketch10.addConstraint([
    Sketcher.Constraint("Equal", 0, 1),
    Sketcher.Constraint("Symmetric", 0, 3, 1, 3, -1, 1),
    Sketcher.Constraint("Diameter", 0, 3.1),
    Sketcher.Constraint("DistanceX", 0, 3, -1, 1, 21.2),
    Sketcher.Constraint("DistanceY", 0, 3, -1, 1, 21.2),
])
doc.recompute()
hole3 = body.newObject("PartDesign::Hole", "Hole002")
hole3.Profile = sketch10
hole3.ThreadType = "None"
hole3.Diameter = 3.1
hole3.DepthType = "Dimension"
hole3.Depth = 16
hole3.DrillPoint = "Angled"
hole3.DrillPointAngle = 118
hole3.HoleCutType = "Counterbore"
hole3.HoleCutDiameter = 5.5
hole3.HoleCutDepth = 3.2
hole3.Reversed = True

# Sketch on XY plane
sketch11 = body.newObject("Sketcher::SketchObject", "Sketch010")
sketch11.AttachmentSupport = (doc.getObject("XY_Plane"), [""])
sketch11.MapMode = "FlatFace"
add_polygon(sketch11, [(-19, -23.4), (-22, -24.3), (-24.3, -22), (-23.4, -19), (-20.4, -18.1), (-18.1, -20.4)])  # lines 0-5
add_polygon(sketch11, [(22, 24.3), (24.3, 22), (23.4, 19), (20.4, 18.1), (18.1, 20.4), (19, 23.4)])  # lines 6-11
sketch11.addConstraint([
    Sketcher.Constraint("Symmetric", 1, 2, 6, 2, -1, 1),
    Sketcher.Constraint("Symmetric", 2, 2, 7, 2, -1, 1),
    Sketcher.Constraint("Symmetric", 3, 2, 8, 2, -1, 1),
    Sketcher.Constraint("Symmetric", 4, 2, 9, 2, -1, 1),
    Sketcher.Constraint("Symmetric", 5, 2, 10, 2, -1, 1),
    Sketcher.Constraint("Symmetric", 0, 2, 11, 2, -1, 1),
    Sketcher.Constraint("Parallel", 0, 3),
    Sketcher.Constraint("Parallel", 1, 4),
    Sketcher.Constraint("Parallel", 2, 5),
    Sketcher.Constraint("Equal", 0, 1),
    Sketcher.Constraint("Equal", 1, 2),
    Sketcher.Constraint("Equal", 2, 3),
    Sketcher.Constraint("Angle", 1, Q("135 deg")),
    Sketcher.Constraint("DistanceX", 4, 2, 6, 2, 42.4),
    Sketcher.Constraint("DistanceY", 4, 2, 6, 2, 42.4),
    Sketcher.Constraint("DistanceX", 0, 2, -1, 1, 22.022),
    Sketcher.Constraint("DistanceY", 1, 2, -1, 1, 22.022),
    Sketcher.Constraint("DistanceX", 1, 2, 3, 2, 3.889),
])
pocket6 = body.newObject("PartDesign::Pocket", "Pocket005")
pocket6.Profile = sketch11
pocket6.Length = 3.2
pocket6.Reversed = True

doc.recompute()
